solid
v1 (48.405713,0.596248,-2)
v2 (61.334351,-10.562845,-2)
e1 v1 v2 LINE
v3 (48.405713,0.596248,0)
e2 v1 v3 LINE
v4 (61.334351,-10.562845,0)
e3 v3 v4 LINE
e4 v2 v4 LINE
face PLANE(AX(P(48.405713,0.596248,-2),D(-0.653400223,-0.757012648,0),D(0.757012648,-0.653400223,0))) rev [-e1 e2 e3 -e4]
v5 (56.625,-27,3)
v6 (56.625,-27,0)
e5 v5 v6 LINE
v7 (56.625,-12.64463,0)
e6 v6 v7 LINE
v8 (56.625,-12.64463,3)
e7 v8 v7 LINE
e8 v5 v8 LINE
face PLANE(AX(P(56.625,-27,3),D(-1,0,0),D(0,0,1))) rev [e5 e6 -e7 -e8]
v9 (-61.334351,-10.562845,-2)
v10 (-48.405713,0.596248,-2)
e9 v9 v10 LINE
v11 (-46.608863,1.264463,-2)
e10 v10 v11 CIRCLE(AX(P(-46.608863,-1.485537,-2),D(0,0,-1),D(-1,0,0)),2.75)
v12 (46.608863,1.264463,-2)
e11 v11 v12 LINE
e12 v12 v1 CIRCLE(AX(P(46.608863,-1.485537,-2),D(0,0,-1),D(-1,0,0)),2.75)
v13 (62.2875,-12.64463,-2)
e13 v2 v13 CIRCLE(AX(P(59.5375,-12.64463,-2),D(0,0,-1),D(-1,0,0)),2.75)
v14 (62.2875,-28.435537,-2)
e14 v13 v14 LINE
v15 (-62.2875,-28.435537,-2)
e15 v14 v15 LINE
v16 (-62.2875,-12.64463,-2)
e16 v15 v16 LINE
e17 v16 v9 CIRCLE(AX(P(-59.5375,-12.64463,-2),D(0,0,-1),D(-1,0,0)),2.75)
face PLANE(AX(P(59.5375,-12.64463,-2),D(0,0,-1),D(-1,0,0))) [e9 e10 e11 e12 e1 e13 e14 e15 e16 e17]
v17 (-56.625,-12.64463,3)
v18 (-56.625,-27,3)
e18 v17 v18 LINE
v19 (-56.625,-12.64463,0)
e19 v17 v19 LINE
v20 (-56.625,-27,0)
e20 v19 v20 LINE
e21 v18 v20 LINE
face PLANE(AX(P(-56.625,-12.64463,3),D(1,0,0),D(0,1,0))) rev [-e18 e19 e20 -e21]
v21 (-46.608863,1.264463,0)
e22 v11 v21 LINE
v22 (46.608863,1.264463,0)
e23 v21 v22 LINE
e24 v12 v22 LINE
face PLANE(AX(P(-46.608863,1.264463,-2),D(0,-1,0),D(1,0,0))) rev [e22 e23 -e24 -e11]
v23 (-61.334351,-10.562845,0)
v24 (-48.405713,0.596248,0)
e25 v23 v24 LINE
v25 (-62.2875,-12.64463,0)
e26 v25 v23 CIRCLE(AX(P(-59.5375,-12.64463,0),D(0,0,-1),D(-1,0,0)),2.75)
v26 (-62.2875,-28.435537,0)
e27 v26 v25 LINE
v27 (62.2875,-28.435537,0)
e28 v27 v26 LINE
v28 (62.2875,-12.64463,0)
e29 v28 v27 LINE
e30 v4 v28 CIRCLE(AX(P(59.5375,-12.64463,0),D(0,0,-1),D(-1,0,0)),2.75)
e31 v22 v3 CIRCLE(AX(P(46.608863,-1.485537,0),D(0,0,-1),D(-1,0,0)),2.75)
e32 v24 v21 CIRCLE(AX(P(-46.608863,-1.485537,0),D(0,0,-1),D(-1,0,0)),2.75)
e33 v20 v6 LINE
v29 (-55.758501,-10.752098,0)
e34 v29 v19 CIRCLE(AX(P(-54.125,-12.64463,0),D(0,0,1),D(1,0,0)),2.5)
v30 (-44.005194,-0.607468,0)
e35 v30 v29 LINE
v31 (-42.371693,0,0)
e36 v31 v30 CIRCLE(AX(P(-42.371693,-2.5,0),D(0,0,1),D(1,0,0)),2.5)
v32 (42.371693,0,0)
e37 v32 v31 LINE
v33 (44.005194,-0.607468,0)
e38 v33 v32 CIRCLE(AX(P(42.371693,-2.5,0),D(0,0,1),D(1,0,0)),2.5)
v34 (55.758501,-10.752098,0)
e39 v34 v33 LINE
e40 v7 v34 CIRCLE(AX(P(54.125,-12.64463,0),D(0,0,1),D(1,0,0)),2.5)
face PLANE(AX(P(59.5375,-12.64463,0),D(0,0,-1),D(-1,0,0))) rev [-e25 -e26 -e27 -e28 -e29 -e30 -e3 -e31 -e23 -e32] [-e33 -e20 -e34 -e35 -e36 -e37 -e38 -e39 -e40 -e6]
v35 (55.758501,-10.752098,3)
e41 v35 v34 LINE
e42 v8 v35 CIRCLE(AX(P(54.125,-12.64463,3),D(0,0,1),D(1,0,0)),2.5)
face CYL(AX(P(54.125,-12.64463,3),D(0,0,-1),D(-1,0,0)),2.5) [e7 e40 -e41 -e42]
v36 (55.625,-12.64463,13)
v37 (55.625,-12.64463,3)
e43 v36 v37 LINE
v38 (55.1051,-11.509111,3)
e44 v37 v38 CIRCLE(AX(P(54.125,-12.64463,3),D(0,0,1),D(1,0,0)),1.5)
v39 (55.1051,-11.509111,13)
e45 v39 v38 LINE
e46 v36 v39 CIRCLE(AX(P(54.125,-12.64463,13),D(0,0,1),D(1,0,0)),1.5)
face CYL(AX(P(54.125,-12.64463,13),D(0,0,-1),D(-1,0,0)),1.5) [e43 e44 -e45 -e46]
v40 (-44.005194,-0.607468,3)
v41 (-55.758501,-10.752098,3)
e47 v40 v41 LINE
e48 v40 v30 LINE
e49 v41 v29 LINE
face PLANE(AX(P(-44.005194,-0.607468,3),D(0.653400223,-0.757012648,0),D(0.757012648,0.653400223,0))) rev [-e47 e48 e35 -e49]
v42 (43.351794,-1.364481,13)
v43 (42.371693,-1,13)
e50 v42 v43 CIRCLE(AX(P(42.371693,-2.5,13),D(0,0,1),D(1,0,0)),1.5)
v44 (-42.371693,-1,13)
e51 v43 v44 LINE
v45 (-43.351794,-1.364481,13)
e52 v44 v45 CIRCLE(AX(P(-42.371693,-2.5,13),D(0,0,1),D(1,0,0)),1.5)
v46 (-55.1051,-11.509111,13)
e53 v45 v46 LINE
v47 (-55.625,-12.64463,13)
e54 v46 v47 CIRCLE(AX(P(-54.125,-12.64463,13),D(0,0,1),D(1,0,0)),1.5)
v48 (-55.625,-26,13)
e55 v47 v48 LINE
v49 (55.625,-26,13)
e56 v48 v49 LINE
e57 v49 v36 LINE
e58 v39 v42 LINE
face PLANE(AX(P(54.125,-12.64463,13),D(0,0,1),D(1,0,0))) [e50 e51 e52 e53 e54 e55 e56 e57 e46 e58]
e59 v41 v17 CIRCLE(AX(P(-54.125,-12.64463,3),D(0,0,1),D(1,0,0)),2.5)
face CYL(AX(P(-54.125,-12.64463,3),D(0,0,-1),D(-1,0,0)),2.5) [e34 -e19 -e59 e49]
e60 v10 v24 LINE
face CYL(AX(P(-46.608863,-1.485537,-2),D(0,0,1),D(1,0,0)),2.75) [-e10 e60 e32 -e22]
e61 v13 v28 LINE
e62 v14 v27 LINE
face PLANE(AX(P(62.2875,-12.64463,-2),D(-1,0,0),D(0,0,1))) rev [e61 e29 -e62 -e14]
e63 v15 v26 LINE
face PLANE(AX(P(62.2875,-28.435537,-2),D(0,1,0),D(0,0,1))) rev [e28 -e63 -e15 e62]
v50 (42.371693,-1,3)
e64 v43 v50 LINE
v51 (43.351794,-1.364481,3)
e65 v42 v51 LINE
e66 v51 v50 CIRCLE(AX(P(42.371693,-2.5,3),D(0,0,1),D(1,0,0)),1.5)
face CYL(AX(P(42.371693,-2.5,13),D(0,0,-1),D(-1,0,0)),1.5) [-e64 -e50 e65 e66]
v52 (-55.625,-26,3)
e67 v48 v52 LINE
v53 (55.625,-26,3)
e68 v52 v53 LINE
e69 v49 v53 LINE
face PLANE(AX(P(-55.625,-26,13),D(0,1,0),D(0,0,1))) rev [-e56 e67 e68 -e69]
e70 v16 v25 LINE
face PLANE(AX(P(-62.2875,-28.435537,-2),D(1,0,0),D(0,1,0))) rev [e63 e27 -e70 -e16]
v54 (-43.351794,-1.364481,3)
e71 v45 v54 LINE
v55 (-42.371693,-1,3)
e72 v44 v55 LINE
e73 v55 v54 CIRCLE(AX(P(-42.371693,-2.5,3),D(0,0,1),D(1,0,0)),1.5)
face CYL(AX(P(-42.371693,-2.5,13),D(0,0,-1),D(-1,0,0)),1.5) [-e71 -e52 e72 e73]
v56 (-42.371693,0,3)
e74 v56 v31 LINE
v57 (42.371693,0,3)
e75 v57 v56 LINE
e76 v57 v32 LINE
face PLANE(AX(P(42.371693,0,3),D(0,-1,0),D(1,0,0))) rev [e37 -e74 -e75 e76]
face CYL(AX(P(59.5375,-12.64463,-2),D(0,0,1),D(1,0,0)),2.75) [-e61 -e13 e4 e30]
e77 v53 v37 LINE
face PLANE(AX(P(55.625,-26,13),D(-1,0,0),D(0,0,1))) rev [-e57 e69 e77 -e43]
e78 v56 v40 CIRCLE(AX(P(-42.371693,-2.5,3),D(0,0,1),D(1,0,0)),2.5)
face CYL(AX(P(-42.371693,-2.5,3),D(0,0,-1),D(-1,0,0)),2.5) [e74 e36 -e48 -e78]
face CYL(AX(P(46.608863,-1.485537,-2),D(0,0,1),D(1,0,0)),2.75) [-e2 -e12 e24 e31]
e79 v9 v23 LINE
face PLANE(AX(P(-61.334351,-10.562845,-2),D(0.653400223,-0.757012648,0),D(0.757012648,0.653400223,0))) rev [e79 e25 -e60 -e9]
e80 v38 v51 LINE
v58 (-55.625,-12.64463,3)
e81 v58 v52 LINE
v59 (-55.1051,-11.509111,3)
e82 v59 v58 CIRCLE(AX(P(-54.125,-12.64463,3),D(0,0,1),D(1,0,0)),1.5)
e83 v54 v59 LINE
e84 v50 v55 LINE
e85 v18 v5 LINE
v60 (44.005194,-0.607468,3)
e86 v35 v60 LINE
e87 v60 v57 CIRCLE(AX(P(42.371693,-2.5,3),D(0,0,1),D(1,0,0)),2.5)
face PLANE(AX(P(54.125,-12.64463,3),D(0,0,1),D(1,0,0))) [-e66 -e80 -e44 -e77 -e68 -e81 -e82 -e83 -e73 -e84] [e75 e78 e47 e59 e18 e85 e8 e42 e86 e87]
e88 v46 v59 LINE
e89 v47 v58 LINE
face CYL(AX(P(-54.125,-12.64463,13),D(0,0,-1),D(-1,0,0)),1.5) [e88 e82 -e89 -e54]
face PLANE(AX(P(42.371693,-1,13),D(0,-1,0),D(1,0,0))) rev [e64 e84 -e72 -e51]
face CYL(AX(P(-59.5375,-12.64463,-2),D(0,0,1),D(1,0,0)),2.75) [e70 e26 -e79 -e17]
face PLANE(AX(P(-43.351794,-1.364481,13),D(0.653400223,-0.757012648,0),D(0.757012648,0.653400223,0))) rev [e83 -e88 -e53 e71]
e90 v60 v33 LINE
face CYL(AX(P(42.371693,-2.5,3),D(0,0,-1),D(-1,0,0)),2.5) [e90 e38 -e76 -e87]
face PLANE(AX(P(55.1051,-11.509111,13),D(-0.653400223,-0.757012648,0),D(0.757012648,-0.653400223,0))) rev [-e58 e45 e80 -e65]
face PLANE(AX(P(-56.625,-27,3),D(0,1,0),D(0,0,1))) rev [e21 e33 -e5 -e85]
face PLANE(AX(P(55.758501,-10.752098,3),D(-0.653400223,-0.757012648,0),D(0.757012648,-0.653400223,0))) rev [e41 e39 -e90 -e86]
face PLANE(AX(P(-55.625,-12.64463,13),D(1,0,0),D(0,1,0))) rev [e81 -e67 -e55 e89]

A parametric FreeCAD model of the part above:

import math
import FreeCAD as App
import Part
import Sketcher
from FreeCAD import Vector
Q = App.Units.Quantity

doc = App.newDocument("Part")
params = doc.addObject("Spreadsheet::Sheet", "Params")
for row, (alias, value) in enumerate([
    ("sketch1_radius", "2.5 mm"),
    ("sketch1_width", "113.25 mm"),
    ("pad1_length", "3 mm"),
    ("sketch2_radius", "1.5 mm"),
    ("sketch2_width", "111.25 mm"),
    ("pad2_length", "10 mm"),
    ("sketch3_radius", "2.75 mm"),
    ("pad3_length", "2 mm"),
], start=1):
    params.set(f"A{row}", alias)
    params.set(f"B{row}", "=" + value)
    params.setAlias(f"B{row}", alias)

body = doc.addObject("PartDesign::Body", "Body")

sketch1 = body.newObject("Sketcher::SketchObject", "Sketch")
sketch1.AttachmentSupport = (doc.getObject("XY_Plane"), [""])
sketch1.MapMode = "FlatFace"
sketch1.addGeometry([
    Part.LineSegment(Vector(-56.6, -27, 0), Vector(56.6, -27, 0)),
    Part.LineSegment(Vector(56.6, -27, 0), Vector(56.6, -12.6, 0)),
    Part.ArcOfCircle(Part.Circle(Vector(54.1, -12.6, 0), Vector(0, 0, 1), 2.5), math.radians(0), math.radians(49)),
    Part.LineSegment(Vector(55.8, -10.8, 0), Vector(44, -0.6, 0)),
    Part.ArcOfCircle(Part.Circle(Vector(42.4, -2.5, 0), Vector(0, 0, 1), 2.5), math.radians(49), math.radians(90)),
    Part.LineSegment(Vector(42.4, 0, 0), Vector(-42.4, 0, 0)),
    Part.ArcOfCircle(Part.Circle(Vector(-42.4, -2.5, 0), Vector(0, 0, 1), 2.5), math.radians(90), math.radians(131)),
    Part.LineSegment(Vector(-44, -0.6, 0), Vector(-55.8, -10.8, 0)),
    Part.ArcOfCircle(Part.Circle(Vector(-54.1, -12.6, 0), Vector(0, 0, 1), 2.5), math.radians(131), math.radians(180)),
    Part.LineSegment(Vector(-56.6, -12.6, 0), Vector(-56.6, -27, 0)),
], False)
sketch1.addConstraint([
    Sketcher.Constraint("Coincident", 0, 2, 1, 1),
    Sketcher.Constraint("Tangent", 1, 2, 2, 1),
    Sketcher.Constraint("Tangent", 2, 2, 3, 1),
    Sketcher.Constraint("Tangent", 3, 2, 4, 1),
    Sketcher.Constraint("Tangent", 4, 2, 5, 1),
    Sketcher.Constraint("Tangent", 5, 2, 6, 1),
    Sketcher.Constraint("Tangent", 6, 2, 7, 1),
    Sketcher.Constraint("Tangent", 7, 2, 8, 1),
    Sketcher.Constraint("Tangent", 8, 2, 9, 1),
    Sketcher.Constraint("Coincident", 9, 2, 0, 1),
    Sketcher.Constraint("Horizontal", 0),
    Sketcher.Constraint("Vertical", 1),
    Sketcher.Constraint("Horizontal", 5),
    Sketcher.Constraint("Vertical", 9),
    Sketcher.Constraint("Equal", 2, 4),
    Sketcher.Constraint("Equal", 4, 6),
    Sketcher.Constraint("Equal", 6, 8),
    Sketcher.Constraint("Symmetric", 4, 2, 5, 2, -1, 1),
    Sketcher.Constraint("Symmetric", 2, 3, 8, 3, -2),
    Sketcher.Constraint("Radius", 2, Q("2.5 mm")),
    Sketcher.Constraint("DistanceY", 0, 2, -1, 1, Q("27 mm")),
    Sketcher.Constraint("DistanceX", 0, 1, 0, 2, Q("113.25 mm")),
    Sketcher.Constraint("DistanceY", 1, 1, 1, 2, Q("14.35537 mm")),
    Sketcher.Constraint("DistanceX", -1, 1, 2, 2, Q("55.758501 mm")),
])
sketch1.setExpression("Constraints[19]", "Params.sketch1_radius")
sketch1.setExpression("Constraints[21]", "Params.sketch1_width")
pad1 = body.newObject("PartDesign::Pad", "Pad")
pad1.Profile = sketch1
pad1.setExpression("Length", "Params.pad1_length")

sketch2 = body.newObject("Sketcher::SketchObject", "Sketch001")
sketch2.AttachmentSupport = (doc.getObject("XY_Plane"), [""])
sketch2.MapMode = "FlatFace"
sketch2.AttachmentOffset = App.Placement(Vector(0, 0, 3), App.Rotation())
sketch2.addGeometry([
    Part.LineSegment(Vector(55.6, -26, 0), Vector(55.6, -12.6, 0)),
    Part.ArcOfCircle(Part.Circle(Vector(54.1, -12.6, 0), Vector(0, 0, 1), 1.5), math.radians(0), math.radians(49)),
    Part.LineSegment(Vector(55.1, -11.5, 0), Vector(43.4, -1.4, 0)),
    Part.ArcOfCircle(Part.Circle(Vector(42.4, -2.5, 0), Vector(0, 0, 1), 1.5), math.radians(49), math.radians(90)),
    Part.LineSegment(Vector(42.4, -1, 0), Vector(-42.4, -1, 0)),
    Part.ArcOfCircle(Part.Circle(Vector(-42.4, -2.5, 0), Vector(0, 0, 1), 1.5), math.radians(90), math.radians(131)),
    Part.LineSegment(Vector(-43.4, -1.4, 0), Vector(-55.1, -11.5, 0)),
    Part.ArcOfCircle(Part.Circle(Vector(-54.1, -12.6, 0), Vector(0, 0, 1), 1.5), math.radians(131), math.radians(180)),
    Part.LineSegment(Vector(-55.6, -12.6, 0), Vector(-55.6, -26, 0)),
    Part.LineSegment(Vector(-55.6, -26, 0), Vector(55.6, -26, 0)),
], False)
sketch2.addConstraint([
    Sketcher.Constraint("Tangent", 0, 2, 1, 1),
    Sketcher.Constraint("Tangent", 1, 2, 2, 1),
    Sketcher.Constraint("Tangent", 2, 2, 3, 1),
    Sketcher.Constraint("Tangent", 3, 2, 4, 1),
    Sketcher.Constraint("Tangent", 4, 2, 5, 1),
    Sketcher.Constraint("Tangent", 5, 2, 6, 1),
    Sketcher.Constraint("Tangent", 6, 2, 7, 1),
    Sketcher.Constraint("Tangent", 7, 2, 8, 1),
    Sketcher.Constraint("Coincident", 8, 2, 9, 1),
    Sketcher.Constraint("Coincident", 9, 2, 0, 1),
    Sketcher.Constraint("Vertical", 0),
    Sketcher.Constraint("Horizontal", 4),
    Sketcher.Constraint("Vertical", 8),
    Sketcher.Constraint("Horizontal", 9),
    Sketcher.Constraint("Equal", 1, 3),
    Sketcher.Constraint("Equal", 3, 5),
    Sketcher.Constraint("Equal", 5, 7),
    Sketcher.Constraint("Symmetric", 1, 3, 7, 3, -2),
    Sketcher.Constraint("Horizontal", 2, 2, 5, 2),
    Sketcher.Constraint("Radius", 1, Q("1.5 mm")),
    Sketcher.Constraint("DistanceY", 3, 2, -1, 1, Q("1 mm")),
    Sketcher.Constraint("DistanceY", 8, 2, -1, 1, Q("26 mm")),
    Sketcher.Constraint("DistanceX", 9, 1, 9, 2, Q("111.25 mm")),
    Sketcher.Constraint("DistanceY", 0, 1, 0, 2, Q("13.35537 mm")),
    Sketcher.Constraint("DistanceX", -1, 1, 1, 2, Q("55.1051 mm")),
])
sketch2.setExpression("Constraints[19]", "Params.sketch2_radius")
sketch2.setExpression("Constraints[22]", "Params.sketch2_width")
pad2 = body.newObject("PartDesign::Pad", "Pad001")
pad2.Profile = sketch2
pad2.setExpression("Length", "Params.pad2_length")

sketch3 = body.newObject("Sketcher::SketchObject", "Sketch002")
sketch3.AttachmentSupport = (doc.getObject("XY_Plane"), [""])
sketch3.MapMode = "FlatFace"
sketch3.addGeometry([
    Part.LineSegment(Vector(62.3, -12.6, 0), Vector(62.3, -28.4, 0)),
    Part.LineSegment(Vector(62.3, -28.4, 0), Vector(-62.3, -28.4, 0)),
    Part.LineSegment(Vector(-62.3, -28.4, 0), Vector(-62.3, -12.6, 0)),
    Part.ArcOfCircle(Part.Circle(Vector(-59.5, -12.6, 0), Vector(0, 0, 1), 2.8), math.radians(131), math.radians(180)),
    Part.LineSegment(Vector(-61.3, -10.6, 0), Vector(-48.4, 0.6, 0)),
    Part.ArcOfCircle(Part.Circle(Vector(-46.6, -1.5, 0), Vector(0, 0, 1), 2.7), math.radians(90), math.radians(131)),
    Part.LineSegment(Vector(-46.6, 1.3, 0), Vector(46.6, 1.3, 0)),
    Part.ArcOfCircle(Part.Circle(Vector(46.6, -1.5, 0), Vector(0, 0, 1), 2.7), math.radians(49), math.radians(90)),
    Part.LineSegment(Vector(48.4, 0.6, 0), Vector(61.3, -10.6, 0)),
    Part.ArcOfCircle(Part.Circle(Vector(59.5, -12.6, 0), Vector(0, 0, 1), 2.8), math.radians(0), math.radians(49)),
], False)
sketch3.addConstraint([
    Sketcher.Constraint("Coincident", 0, 2, 1, 1),
    Sketcher.Constraint("Coincident", 1, 2, 2, 1),
    Sketcher.Constraint("Tangent", 2, 2, 3, 2),
    Sketcher.Constraint("Tangent", 3, 1, 4, 1),
    Sketcher.Constraint("Tangent", 4, 2, 5, 2),
    Sketcher.Constraint("Tangent", 5, 1, 6, 1),
    Sketcher.Constraint("Tangent", 6, 2, 7, 2),
    Sketcher.Constraint("Tangent", 7, 1, 8, 1),
    Sketcher.Constraint("Tangent", 8, 2, 9, 2),
    Sketcher.Constraint("Tangent", 9, 1, 0, 1),
    Sketcher.Constraint("Vertical", 0),
    Sketcher.Constraint("Horizontal", 1),
    Sketcher.Constraint("Vertical", 2),
    Sketcher.Constraint("Horizontal", 6),
    Sketcher.Constraint("Equal", 3, 5),
    Sketcher.Constraint("Equal", 5, 7),
    Sketcher.Constraint("Equal", 7, 9),
    Sketcher.Constraint("Symmetric", 3, 3, 9, 3, -2),
    Sketcher.Constraint("Horizontal", 4, 2, 7, 1),
    Sketcher.Constraint("Radius", 3, Q("2.75 mm")),
    Sketcher.Constraint("DistanceY", 0, 2, 6, 2, Q("29.7 mm")),
    Sketcher.Constraint("DistanceX", 1, 2, 1, 1, Q("124.575 mm")),
    Sketcher.Constraint("DistanceX", 6, 1, 6, 2, Q("93.217725 mm")),
    Sketcher.Constraint("DistanceY", 0, 2, 0, 1, Q("15.790907 mm")),
    Sketcher.Constraint("DistanceY", 3, 3, -1, 1, Q("12.64463 mm")),
])
sketch3.setExpression("Constraints[19]", "Params.sketch3_radius")
pad3 = body.newObject("PartDesign::Pad", "Pad002")
pad3.Profile = sketch3
pad3.setExpression("Length", "Params.pad3_length")
pad3.Reversed = True

doc.recompute()
